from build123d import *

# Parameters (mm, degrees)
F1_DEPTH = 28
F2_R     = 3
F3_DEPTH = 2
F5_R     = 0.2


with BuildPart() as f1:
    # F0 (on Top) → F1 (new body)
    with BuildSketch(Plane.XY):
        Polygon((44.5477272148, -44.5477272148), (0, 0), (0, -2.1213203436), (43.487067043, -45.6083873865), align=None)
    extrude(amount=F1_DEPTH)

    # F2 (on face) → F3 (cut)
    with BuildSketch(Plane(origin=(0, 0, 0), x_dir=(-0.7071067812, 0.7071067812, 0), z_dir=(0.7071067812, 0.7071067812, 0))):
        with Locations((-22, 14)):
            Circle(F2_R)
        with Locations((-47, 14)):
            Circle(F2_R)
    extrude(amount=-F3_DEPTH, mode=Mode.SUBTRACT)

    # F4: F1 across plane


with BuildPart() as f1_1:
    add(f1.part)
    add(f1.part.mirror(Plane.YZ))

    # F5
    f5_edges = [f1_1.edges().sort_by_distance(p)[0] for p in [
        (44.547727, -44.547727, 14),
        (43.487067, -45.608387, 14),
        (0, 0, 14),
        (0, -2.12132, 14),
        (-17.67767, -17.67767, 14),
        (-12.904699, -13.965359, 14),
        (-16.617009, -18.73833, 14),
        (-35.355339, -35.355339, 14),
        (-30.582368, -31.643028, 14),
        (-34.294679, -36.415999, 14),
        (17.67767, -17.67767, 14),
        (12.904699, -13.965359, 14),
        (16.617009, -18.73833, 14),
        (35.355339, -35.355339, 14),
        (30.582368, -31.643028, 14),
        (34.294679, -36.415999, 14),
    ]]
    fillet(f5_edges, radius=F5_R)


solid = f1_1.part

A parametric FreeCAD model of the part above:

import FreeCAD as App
import Part
import Sketcher
from FreeCAD import Vector
Q = App.Units.Quantity


def edges_at(feature, points):
    """Names of the edges that pass closest to the given points."""
    edges = feature.Shape.Edges
    near = lambda p: min(range(len(edges)), key=lambda i: edges[i].distToShape(Part.Vertex(*p))[0])
    return sorted({f"Edge{near(p) + 1}" for p in points})


def add_polygon(sketch, points):
    """Adds a closed chain of lines whose ends are joined by coincident constraints."""
    first, n = sketch.GeometryCount, len(points)
    for a, b in zip(points, points[1:] + points[:1]):
        sketch.addGeometry(Part.LineSegment(App.Vector(*a, 0), App.Vector(*b, 0)), False)
    for i in range(n):
        sketch.addConstraint(Sketcher.Constraint("Coincident", first + i, 2, first + (i + 1) % n, 1))

doc = App.newDocument("Part")
body = doc.addObject("PartDesign::Body", "Body")

# Sketch on XY plane
sketch1 = body.newObject("Sketcher::SketchObject", "Sketch")
sketch1.AttachmentSupport = (doc.getObject("XY_Plane"), [""])
sketch1.MapMode = "FlatFace"
add_polygon(sketch1, [(44.5, -44.5), (0, 0), (0, -2.1), (43.5, -45.6)])  # lines 0-3
sketch1.addConstraint([
    Sketcher.Constraint("Vertical", 1),
    Sketcher.Constraint("Coincident", 0, 2, -1, 1),
    Sketcher.Constraint("Parallel", 0, 2),
    Sketcher.Constraint("Perpendicular", 2, 3),
    Sketcher.Constraint("Angle", 0, Q("135 deg")),
    Sketcher.Constraint("Distance", 0, 63.0),
    Sketcher.Constraint("Distance", 2, 61.5),
])
pad1 = body.newObject("PartDesign::Pad", "Pad")
pad1.Profile = sketch1
pad1.Length = 28

# Sketch on an angled plane
sketch2 = body.newObject("Sketcher::SketchObject", "Sketch001")
sketch2.Placement = App.Placement(Vector(0, 0, 0), App.Rotation(Vector(-0.707106781, 0.707106781, 0), Vector(0, 0, 0.999999999), Vector(0.707106781, 0.707106781, 0), "ZXY"))
sketch2.addGeometry([
    Part.Circle(Vector(-22, 14, 0), Vector(0, 0, 1), 3),
    Part.Circle(Vector(-47, 14, 0), Vector(0, 0, 1), 3),
], False)
sketch2.addConstraint([
    Sketcher.Constraint("Equal", 0, 1),
    Sketcher.Constraint("Horizontal", 0, 3, 1, 3),
    Sketcher.Constraint("Diameter", 0, 6.0),
    Sketcher.Constraint("DistanceX", 0, 3, -1, 1, 22.0),
    Sketcher.Constraint("DistanceY", -1, 1, 0, 3, 14.0),
    Sketcher.Constraint("DistanceX", 1, 3, -1, 1, 47.0),
])
pocket1 = body.newObject("PartDesign::Pocket", "Pocket")
pocket1.Profile = sketch2
pocket1.Length = 2
body2 = doc.addObject("PartDesign::Body", "Body001")
doc.recompute()

body2.BaseFeature = body
doc.recompute()

mirroring = doc.addObject("Part::Mirroring", "Mirroring")
mirroring.Source = body
mirroring.Base = Vector(0, 0, 0)
mirroring.Normal = Vector(1, 0, 0)
body3 = doc.addObject("PartDesign::Body", "Body002")
body3.BaseFeature = mirroring
boolean = body2.newObject("PartDesign::Boolean", "Boolean")
boolean.Type = "Fuse"
boolean.addObjects([body3])
doc.recompute()

fillet = body2.newObject("PartDesign::Fillet", "Fillet")
fillet.Base = (boolean, edges_at(boolean, [
    (44.548, -44.548, 14),
    (43.487, -45.608, 14),
    (0, 0, 14),
    (0, -2.121, 14),
    (-17.678, -17.678, 14),
    (-12.905, -13.965, 14),
    (-16.617, -18.738, 14),
    (-35.355, -35.355, 14),
    (-30.582, -31.643, 14),
    (-34.295, -36.416, 14),
    (17.678, -17.678, 14),
    (12.905, -13.965, 14),
    (16.617, -18.738, 14),
    (35.355, -35.355, 14),
    (30.582, -31.643, 14),
    (34.295, -36.416, 14),
]))
fillet.Radius = 0.2
mirroring.Visibility = False

doc.recompute()
